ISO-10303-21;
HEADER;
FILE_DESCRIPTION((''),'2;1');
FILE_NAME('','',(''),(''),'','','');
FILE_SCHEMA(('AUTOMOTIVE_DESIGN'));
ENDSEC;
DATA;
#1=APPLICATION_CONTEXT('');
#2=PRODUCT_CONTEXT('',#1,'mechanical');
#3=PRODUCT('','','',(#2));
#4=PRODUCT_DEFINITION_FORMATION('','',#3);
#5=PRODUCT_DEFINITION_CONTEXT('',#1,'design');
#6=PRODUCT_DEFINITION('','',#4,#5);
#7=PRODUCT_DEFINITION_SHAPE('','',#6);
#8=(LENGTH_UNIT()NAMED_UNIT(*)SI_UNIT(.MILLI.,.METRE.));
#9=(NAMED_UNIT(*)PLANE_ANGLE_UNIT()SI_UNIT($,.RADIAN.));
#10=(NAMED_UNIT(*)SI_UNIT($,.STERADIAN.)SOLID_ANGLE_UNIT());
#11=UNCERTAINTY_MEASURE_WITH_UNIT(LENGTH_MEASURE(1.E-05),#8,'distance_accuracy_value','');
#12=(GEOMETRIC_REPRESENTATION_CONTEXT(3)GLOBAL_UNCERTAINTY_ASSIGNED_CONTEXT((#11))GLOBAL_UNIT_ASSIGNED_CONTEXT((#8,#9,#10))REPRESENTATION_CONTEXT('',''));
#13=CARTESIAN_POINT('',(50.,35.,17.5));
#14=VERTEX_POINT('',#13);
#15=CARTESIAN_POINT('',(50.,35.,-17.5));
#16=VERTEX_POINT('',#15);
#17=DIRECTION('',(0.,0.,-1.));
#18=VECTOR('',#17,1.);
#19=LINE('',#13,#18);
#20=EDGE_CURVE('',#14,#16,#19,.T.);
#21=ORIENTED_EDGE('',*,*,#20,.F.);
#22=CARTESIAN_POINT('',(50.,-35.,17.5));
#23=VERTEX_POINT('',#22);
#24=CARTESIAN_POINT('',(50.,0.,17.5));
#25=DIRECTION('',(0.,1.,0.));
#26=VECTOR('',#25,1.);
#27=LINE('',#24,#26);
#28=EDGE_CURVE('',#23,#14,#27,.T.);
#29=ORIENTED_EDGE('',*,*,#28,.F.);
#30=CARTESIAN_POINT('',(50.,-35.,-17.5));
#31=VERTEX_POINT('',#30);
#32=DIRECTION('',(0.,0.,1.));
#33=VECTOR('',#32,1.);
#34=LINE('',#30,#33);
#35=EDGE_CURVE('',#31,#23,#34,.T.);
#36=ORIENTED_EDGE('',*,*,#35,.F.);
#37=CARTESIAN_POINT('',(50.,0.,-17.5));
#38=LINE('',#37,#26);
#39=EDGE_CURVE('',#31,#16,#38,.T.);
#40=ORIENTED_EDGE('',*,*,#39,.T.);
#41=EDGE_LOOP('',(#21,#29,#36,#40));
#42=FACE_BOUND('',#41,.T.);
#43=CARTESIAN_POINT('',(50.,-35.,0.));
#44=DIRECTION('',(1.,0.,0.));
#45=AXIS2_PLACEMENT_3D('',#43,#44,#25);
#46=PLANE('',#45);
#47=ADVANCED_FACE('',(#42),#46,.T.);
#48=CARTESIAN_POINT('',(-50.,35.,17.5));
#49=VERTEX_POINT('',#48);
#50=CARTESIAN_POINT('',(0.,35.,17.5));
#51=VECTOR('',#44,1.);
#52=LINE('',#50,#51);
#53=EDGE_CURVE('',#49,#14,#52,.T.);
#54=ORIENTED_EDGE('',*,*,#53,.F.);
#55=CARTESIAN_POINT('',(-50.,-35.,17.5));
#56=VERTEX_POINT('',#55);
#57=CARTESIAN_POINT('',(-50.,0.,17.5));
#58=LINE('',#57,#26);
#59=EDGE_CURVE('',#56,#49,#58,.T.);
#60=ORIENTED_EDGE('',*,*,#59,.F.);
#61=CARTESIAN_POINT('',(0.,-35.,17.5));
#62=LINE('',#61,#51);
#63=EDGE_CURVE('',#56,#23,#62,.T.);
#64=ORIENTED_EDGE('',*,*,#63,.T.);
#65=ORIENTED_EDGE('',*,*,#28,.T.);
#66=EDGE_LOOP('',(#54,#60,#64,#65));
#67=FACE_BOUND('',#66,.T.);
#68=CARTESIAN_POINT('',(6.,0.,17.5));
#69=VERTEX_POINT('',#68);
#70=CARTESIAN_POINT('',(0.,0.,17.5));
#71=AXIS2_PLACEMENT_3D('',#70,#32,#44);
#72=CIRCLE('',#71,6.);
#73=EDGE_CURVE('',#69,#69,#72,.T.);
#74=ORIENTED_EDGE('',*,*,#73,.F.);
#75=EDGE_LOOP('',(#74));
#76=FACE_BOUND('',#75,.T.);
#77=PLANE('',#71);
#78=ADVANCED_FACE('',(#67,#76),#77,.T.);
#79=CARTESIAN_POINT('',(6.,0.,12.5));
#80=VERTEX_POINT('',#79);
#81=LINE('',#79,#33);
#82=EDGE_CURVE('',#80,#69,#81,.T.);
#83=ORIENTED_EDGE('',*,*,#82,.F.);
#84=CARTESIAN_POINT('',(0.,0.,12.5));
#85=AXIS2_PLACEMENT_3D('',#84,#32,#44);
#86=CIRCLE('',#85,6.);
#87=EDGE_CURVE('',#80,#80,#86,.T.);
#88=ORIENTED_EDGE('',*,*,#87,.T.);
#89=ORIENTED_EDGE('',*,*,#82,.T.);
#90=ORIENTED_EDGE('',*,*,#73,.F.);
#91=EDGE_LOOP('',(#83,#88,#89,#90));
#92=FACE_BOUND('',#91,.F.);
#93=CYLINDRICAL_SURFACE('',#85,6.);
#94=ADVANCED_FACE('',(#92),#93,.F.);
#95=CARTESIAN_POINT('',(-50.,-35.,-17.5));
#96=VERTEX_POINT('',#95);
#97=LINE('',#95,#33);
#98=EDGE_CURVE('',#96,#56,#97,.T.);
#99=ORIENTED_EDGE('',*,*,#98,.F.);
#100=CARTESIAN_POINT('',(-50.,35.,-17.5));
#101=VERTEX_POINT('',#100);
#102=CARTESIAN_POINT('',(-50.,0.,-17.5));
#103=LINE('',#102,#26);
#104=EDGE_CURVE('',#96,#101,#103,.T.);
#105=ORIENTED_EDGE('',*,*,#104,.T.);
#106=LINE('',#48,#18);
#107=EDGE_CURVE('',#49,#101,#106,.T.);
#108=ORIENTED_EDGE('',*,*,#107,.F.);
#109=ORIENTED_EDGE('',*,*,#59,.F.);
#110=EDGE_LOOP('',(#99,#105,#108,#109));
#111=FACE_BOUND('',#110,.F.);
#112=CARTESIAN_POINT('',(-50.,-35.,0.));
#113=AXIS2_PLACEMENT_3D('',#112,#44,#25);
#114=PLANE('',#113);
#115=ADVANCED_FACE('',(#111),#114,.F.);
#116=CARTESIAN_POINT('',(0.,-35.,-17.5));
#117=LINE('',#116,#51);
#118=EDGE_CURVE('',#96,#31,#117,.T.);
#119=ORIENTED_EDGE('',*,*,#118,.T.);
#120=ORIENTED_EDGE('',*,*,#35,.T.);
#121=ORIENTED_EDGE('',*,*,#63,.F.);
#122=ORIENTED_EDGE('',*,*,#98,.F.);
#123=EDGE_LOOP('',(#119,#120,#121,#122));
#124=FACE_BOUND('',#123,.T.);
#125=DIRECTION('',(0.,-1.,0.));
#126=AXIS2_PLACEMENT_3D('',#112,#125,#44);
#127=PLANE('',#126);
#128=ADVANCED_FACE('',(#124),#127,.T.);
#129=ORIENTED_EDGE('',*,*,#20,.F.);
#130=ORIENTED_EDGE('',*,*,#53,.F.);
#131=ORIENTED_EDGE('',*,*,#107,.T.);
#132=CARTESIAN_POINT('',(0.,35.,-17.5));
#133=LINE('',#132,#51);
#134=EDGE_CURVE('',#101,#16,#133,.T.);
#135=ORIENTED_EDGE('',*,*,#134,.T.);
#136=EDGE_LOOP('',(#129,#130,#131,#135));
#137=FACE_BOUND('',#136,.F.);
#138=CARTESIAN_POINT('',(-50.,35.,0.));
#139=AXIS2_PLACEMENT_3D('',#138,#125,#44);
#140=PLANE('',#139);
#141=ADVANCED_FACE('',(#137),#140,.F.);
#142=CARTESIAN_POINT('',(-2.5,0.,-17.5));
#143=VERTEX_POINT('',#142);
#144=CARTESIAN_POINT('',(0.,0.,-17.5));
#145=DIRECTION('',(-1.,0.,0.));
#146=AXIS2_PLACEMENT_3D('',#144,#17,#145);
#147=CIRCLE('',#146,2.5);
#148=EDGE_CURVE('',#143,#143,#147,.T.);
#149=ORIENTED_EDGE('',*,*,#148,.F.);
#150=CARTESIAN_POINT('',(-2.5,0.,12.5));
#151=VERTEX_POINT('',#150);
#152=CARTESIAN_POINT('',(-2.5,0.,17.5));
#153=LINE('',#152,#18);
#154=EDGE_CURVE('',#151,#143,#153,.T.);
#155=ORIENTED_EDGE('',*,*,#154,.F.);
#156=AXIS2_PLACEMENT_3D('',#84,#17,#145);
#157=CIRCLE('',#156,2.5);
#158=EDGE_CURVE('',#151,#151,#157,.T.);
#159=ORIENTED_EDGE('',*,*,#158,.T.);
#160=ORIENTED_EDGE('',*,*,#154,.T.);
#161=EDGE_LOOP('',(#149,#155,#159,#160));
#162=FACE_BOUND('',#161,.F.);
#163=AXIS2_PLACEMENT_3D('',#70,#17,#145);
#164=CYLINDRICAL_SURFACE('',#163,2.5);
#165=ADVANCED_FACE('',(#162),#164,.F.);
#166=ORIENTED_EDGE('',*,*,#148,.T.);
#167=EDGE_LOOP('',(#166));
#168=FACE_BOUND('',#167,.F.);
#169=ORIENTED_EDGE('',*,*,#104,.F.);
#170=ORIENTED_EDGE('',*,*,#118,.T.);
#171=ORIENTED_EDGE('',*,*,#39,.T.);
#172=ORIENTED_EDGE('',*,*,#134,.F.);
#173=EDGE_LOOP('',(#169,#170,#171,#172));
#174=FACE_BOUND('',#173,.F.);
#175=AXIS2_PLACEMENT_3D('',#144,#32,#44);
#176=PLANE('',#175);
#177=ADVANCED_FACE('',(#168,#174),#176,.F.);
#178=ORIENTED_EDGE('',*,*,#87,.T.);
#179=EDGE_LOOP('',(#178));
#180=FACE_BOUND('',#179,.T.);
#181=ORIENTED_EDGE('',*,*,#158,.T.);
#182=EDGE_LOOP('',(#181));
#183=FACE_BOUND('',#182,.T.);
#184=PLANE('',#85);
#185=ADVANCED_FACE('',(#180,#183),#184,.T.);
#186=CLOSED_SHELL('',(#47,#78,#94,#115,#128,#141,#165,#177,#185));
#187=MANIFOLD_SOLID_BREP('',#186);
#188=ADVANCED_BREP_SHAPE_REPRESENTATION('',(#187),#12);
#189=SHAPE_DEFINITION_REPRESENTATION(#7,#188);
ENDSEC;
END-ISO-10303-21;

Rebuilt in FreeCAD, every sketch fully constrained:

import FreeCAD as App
import Part
import Sketcher

V = App.Vector
Q = App.Units.Quantity

doc = App.newDocument("Part")
body = doc.addObject("PartDesign::Body", "Body")

# Sketch on XY plane
sketch1 = body.newObject("Sketcher::SketchObject", "Sketch")
sketch1.AttachmentSupport = (doc.getObject("XY_Plane"), [""])
sketch1.MapMode = "FlatFace"
sketch1.addGeometry(Part.LineSegment(V(-50, 35, 0), V(-50, -35, 0)), False)
sketch1.addGeometry(Part.LineSegment(V(-50, -35, 0), V(50, -35, 0)), False)
sketch1.addGeometry(Part.LineSegment(V(50, -35, 0), V(50, 35, 0)), False)
sketch1.addGeometry(Part.LineSegment(V(50, 35, 0), V(-50, 35, 0)), False)
sketch1.addConstraint(Sketcher.Constraint("Coincident", 0, 2, 1, 1))
sketch1.addConstraint(Sketcher.Constraint("Coincident", 1, 2, 2, 1))
sketch1.addConstraint(Sketcher.Constraint("Coincident", 2, 2, 3, 1))
sketch1.addConstraint(Sketcher.Constraint("Coincident", 3, 2, 0, 1))
sketch1.addConstraint(Sketcher.Constraint("Vertical", 0))
sketch1.addConstraint(Sketcher.Constraint("Horizontal", 1))
sketch1.addConstraint(Sketcher.Constraint("Vertical", 2))
sketch1.addConstraint(Sketcher.Constraint("Horizontal", 3))
sketch1.addConstraint(Sketcher.Constraint("Symmetric", 0, 2, 2, 2, -1, 1))
sketch1.addConstraint(Sketcher.Constraint("DistanceX", 1, 1, 1, 2, Q("100 mm")))
sketch1.addConstraint(Sketcher.Constraint("DistanceY", 0, 2, 0, 1, Q("70 mm")))
pad1 = body.newObject("PartDesign::Pad", "Pad")
pad1.Profile = sketch1
pad1.Length = 35
pad1.Midplane = True

# Sketch on XY plane
sketch2 = body.newObject("Sketcher::SketchObject", "Sketch001")
sketch2.AttachmentSupport = (doc.getObject("XY_Plane"), [""])
sketch2.MapMode = "FlatFace"
sketch2.AttachmentOffset = App.Placement(V(0, 0, 17.5), App.Rotation())
sketch2.addGeometry(Part.Circle(V(0, 0, 0), V(0, 0, 1), 2.5), False)
sketch2.addConstraint(Sketcher.Constraint("Coincident", 0, 3, -1, 1))
sketch2.addConstraint(Sketcher.Constraint("Diameter", 0, Q("5 mm")))
doc.recompute()
hole = body.newObject("PartDesign::Hole", "Hole")
hole.Profile = sketch2
hole.ThreadType = "None"
hole.Diameter = 5
hole.DepthType = "ThroughAll"
hole.HoleCutType = "Counterbore"
hole.HoleCutDiameter = 12
hole.HoleCutDepth = 5

doc.recompute()
